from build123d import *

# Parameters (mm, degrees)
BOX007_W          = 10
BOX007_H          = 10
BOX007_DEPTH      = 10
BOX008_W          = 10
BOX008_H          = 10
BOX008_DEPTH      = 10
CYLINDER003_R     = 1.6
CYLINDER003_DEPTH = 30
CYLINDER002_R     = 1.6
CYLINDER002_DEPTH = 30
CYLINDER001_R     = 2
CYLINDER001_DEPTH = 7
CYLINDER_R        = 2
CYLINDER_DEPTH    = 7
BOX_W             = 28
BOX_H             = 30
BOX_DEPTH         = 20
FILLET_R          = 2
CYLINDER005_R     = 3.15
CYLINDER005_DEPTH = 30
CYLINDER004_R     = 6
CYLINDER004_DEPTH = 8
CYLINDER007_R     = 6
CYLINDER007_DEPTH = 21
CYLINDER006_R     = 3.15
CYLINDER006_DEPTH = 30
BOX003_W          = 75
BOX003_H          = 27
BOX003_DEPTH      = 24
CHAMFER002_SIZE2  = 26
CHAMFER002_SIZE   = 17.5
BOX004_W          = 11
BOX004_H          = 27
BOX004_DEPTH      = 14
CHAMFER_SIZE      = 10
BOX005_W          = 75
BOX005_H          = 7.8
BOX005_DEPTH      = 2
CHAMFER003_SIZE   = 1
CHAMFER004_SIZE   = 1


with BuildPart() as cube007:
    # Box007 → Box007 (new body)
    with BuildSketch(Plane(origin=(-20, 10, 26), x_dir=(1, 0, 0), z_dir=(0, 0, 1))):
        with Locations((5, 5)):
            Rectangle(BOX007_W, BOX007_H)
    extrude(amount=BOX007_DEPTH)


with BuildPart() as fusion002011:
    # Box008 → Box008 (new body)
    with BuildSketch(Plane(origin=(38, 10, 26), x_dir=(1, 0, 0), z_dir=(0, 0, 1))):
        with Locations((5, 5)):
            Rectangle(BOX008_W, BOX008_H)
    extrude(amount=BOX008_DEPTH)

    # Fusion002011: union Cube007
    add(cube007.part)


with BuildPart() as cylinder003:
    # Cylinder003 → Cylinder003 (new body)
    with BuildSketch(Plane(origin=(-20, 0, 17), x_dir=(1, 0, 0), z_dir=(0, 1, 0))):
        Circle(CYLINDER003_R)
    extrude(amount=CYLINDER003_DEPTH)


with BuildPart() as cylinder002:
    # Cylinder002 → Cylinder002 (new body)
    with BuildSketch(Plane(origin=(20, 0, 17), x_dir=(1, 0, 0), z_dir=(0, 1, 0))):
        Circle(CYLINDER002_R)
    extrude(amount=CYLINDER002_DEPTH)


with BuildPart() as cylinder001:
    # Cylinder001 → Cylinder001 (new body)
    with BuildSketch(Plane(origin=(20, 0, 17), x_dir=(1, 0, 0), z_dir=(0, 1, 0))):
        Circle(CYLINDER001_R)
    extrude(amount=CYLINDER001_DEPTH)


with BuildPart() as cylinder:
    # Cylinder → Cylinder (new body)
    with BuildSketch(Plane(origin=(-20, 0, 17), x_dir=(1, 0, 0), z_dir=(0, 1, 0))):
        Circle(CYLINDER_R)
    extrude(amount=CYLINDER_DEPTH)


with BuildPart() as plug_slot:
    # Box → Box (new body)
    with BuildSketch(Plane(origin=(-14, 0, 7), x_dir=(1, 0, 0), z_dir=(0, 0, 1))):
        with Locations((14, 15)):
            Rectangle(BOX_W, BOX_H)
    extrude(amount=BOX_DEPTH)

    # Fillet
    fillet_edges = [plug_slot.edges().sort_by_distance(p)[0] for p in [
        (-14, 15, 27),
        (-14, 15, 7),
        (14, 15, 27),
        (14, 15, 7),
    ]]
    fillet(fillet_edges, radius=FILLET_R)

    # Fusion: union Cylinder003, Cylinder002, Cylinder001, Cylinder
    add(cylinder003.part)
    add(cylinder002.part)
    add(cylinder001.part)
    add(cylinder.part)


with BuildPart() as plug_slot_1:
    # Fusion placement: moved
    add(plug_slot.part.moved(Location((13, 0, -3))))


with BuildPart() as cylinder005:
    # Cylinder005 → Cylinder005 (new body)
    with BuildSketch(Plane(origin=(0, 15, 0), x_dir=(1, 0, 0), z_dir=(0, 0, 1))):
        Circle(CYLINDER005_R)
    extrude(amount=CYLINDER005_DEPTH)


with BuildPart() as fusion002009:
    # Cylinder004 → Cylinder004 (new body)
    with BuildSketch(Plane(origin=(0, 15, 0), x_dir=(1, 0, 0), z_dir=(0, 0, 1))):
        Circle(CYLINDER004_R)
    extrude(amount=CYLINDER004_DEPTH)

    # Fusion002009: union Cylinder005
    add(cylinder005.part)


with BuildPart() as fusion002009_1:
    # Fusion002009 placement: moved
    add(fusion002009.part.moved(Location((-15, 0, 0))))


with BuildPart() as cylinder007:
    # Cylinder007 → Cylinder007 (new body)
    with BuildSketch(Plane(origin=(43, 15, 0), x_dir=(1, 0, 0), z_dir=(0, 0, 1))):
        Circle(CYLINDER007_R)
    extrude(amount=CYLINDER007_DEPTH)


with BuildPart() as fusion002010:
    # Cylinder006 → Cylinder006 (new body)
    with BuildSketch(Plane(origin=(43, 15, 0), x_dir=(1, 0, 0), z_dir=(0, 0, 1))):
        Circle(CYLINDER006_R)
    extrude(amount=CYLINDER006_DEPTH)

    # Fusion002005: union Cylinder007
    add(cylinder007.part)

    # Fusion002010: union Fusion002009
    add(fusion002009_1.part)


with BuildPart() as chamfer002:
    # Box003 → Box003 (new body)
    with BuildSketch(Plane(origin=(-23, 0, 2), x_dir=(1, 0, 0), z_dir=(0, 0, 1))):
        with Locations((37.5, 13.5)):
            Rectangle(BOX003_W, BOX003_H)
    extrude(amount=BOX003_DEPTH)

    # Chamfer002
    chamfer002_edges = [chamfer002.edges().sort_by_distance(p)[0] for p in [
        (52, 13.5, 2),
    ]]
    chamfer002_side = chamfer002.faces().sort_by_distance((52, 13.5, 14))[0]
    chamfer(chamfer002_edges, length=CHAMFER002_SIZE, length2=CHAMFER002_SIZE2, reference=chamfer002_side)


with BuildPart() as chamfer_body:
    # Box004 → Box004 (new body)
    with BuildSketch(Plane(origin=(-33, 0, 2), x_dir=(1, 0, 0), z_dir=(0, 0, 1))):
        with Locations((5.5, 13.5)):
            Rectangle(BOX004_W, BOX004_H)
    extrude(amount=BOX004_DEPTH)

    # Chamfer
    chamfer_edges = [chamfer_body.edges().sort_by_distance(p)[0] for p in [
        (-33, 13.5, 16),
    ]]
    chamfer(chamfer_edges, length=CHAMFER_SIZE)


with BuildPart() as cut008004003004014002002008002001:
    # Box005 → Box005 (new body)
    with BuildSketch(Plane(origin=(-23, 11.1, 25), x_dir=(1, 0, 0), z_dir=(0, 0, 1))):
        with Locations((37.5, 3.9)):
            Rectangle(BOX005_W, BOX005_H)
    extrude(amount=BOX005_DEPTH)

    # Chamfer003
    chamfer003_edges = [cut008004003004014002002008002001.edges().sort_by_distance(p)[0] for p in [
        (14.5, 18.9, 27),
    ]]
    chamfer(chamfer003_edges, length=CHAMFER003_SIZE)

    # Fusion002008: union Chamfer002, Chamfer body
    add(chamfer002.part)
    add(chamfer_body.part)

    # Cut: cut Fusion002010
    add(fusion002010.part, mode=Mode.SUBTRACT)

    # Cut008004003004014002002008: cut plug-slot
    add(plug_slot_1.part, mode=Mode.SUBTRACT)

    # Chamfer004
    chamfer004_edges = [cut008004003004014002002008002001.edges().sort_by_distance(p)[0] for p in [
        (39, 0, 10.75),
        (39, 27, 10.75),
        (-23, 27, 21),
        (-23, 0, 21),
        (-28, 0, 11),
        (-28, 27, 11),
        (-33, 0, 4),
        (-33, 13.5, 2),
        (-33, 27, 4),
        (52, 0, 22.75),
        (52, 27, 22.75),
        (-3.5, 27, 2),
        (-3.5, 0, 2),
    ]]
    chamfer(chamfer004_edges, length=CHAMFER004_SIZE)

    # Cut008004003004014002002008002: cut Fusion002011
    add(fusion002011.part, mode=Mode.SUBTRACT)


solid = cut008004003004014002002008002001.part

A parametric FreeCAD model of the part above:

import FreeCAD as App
import Part
import Sketcher

V = App.Vector
Q = App.Units.Quantity


def edges_at(feature, points):
    """Names of the edges that pass closest to the given points."""
    edges = feature.Shape.Edges
    near = lambda p: min(range(len(edges)), key=lambda i: edges[i].distToShape(Part.Vertex(*p))[0])
    return sorted({f"Edge{near(p) + 1}" for p in points})

doc = App.newDocument("Part")
body = doc.addObject("PartDesign::Body", "Body")

sketch1 = body.newObject("Sketcher::SketchObject", "Sketch")
sketch1.AttachmentSupport = (doc.getObject("XY_Plane"), [""])
sketch1.MapMode = "FlatFace"
sketch1.AttachmentOffset = App.Placement(V(0, 0, 26), App.Rotation())
sketch1.addGeometry([
    Part.LineSegment(V(-20, 20, 0), V(-20, 10, 0)),
    Part.LineSegment(V(-20, 10, 0), V(-10, 10, 0)),
    Part.LineSegment(V(-10, 10, 0), V(-10, 20, 0)),
    Part.LineSegment(V(-10, 20, 0), V(-20, 20, 0)),
], False)
sketch1.addConstraint([
    Sketcher.Constraint("Coincident", 0, 2, 1, 1),
    Sketcher.Constraint("Coincident", 1, 2, 2, 1),
    Sketcher.Constraint("Coincident", 2, 2, 3, 1),
    Sketcher.Constraint("Coincident", 3, 2, 0, 1),
    Sketcher.Constraint("Vertical", 0),
    Sketcher.Constraint("Horizontal", 1),
    Sketcher.Constraint("Vertical", 2),
    Sketcher.Constraint("Horizontal", 3),
    Sketcher.Constraint("Equal", 3, 0),
    Sketcher.Constraint("DistanceX", 1, 1, 1, 2, Q("10 mm")),
    Sketcher.Constraint("DistanceX", 0, 2, -1, 1, Q("20 mm")),
    Sketcher.Constraint("DistanceY", -1, 1, 0, 2, Q("10 mm")),
])
pad1 = body.newObject("PartDesign::Pad", "Pad")
pad1.Profile = sketch1
pad1.Length = 10
body2 = doc.addObject("PartDesign::Body", "Body001")
body2.AllowCompound = True

sketch2 = body2.newObject("Sketcher::SketchObject", "Sketch001")
sketch2.AttachmentSupport = (doc.getObject("XY_Plane001"), [""])
sketch2.MapMode = "FlatFace"
sketch2.AttachmentOffset = App.Placement(V(0, 0, 26), App.Rotation())
sketch2.addGeometry([
    Part.LineSegment(V(38, 20, 0), V(38, 10, 0)),
    Part.LineSegment(V(38, 10, 0), V(48, 10, 0)),
    Part.LineSegment(V(48, 10, 0), V(48, 20, 0)),
    Part.LineSegment(V(48, 20, 0), V(38, 20, 0)),
], False)
sketch2.addConstraint([
    Sketcher.Constraint("Coincident", 0, 2, 1, 1),
    Sketcher.Constraint("Coincident", 1, 2, 2, 1),
    Sketcher.Constraint("Coincident", 2, 2, 3, 1),
    Sketcher.Constraint("Coincident", 3, 2, 0, 1),
    Sketcher.Constraint("Vertical", 0),
    Sketcher.Constraint("Horizontal", 1),
    Sketcher.Constraint("Vertical", 2),
    Sketcher.Constraint("Horizontal", 3),
    Sketcher.Constraint("Equal", 3, 0),
    Sketcher.Constraint("DistanceX", 1, 1, 1, 2, Q("10 mm")),
    Sketcher.Constraint("DistanceX", -1, 1, 0, 2, Q("38 mm")),
    Sketcher.Constraint("DistanceY", -1, 1, 0, 2, Q("10 mm")),
])
pad2 = body2.newObject("PartDesign::Pad", "Pad001")
pad2.Profile = sketch2
pad2.Length = 10
doc.recompute()

boolean = body2.newObject("PartDesign::Boolean", "Boolean")
boolean.Type = "Fuse"
boolean.addObjects([body])
body3 = doc.addObject("PartDesign::Body", "Body002")

sketch3 = body3.newObject("Sketcher::SketchObject", "Sketch002")
sketch3.AttachmentSupport = (doc.getObject("XZ_Plane002"), [""])
sketch3.MapMode = "FlatFace"
sketch3.addGeometry(Part.Circle(V(-20, 17, 0), V(0, 0, 1), 1.6), False)
sketch3.addConstraint([
    Sketcher.Constraint("Diameter", 0, Q("3.2 mm")),
    Sketcher.Constraint("DistanceX", 0, 3, -1, 1, Q("20 mm")),
    Sketcher.Constraint("DistanceY", -1, 1, 0, 3, Q("17 mm")),
])
pad3 = body3.newObject("PartDesign::Pad", "Pad002")
pad3.Profile = sketch3
pad3.Length = 30
pad3.Reversed = True
body4 = doc.addObject("PartDesign::Body", "Body003")

sketch4 = body4.newObject("Sketcher::SketchObject", "Sketch003")
sketch4.AttachmentSupport = (doc.getObject("XZ_Plane003"), [""])
sketch4.MapMode = "FlatFace"
sketch4.addGeometry(Part.Circle(V(20, 17, 0), V(0, 0, 1), 1.6), False)
sketch4.addConstraint([
    Sketcher.Constraint("Diameter", 0, Q("3.2 mm")),
    Sketcher.Constraint("DistanceX", -1, 1, 0, 3, Q("20 mm")),
    Sketcher.Constraint("DistanceY", -1, 1, 0, 3, Q("17 mm")),
])
pad4 = body4.newObject("PartDesign::Pad", "Pad003")
pad4.Profile = sketch4
pad4.Length = 30
pad4.Reversed = True
body5 = doc.addObject("PartDesign::Body", "Body004")

sketch5 = body5.newObject("Sketcher::SketchObject", "Sketch004")
sketch5.AttachmentSupport = (doc.getObject("XZ_Plane004"), [""])
sketch5.MapMode = "FlatFace"
sketch5.addGeometry(Part.Circle(V(20, 17, 0), V(0, 0, 1), 2), False)
sketch5.addConstraint([
    Sketcher.Constraint("Diameter", 0, Q("4 mm")),
    Sketcher.Constraint("DistanceX", -1, 1, 0, 3, Q("20 mm")),
    Sketcher.Constraint("DistanceY", -1, 1, 0, 3, Q("17 mm")),
])
pad5 = body5.newObject("PartDesign::Pad", "Pad004")
pad5.Profile = sketch5
pad5.Length = 7
pad5.Reversed = True
body6 = doc.addObject("PartDesign::Body", "Body005")

sketch6 = body6.newObject("Sketcher::SketchObject", "Sketch005")
sketch6.AttachmentSupport = (doc.getObject("XZ_Plane005"), [""])
sketch6.MapMode = "FlatFace"
sketch6.addGeometry(Part.Circle(V(-20, 17, 0), V(0, 0, 1), 2), False)
sketch6.addConstraint([
    Sketcher.Constraint("Diameter", 0, Q("4 mm")),
    Sketcher.Constraint("DistanceX", 0, 3, -1, 1, Q("20 mm")),
    Sketcher.Constraint("DistanceY", -1, 1, 0, 3, Q("17 mm")),
])
pad6 = body6.newObject("PartDesign::Pad", "Pad005")
pad6.Profile = sketch6
pad6.Length = 7
pad6.Reversed = True
body7 = doc.addObject("PartDesign::Body", "Body006")
body7.AllowCompound = True

sketch7 = body7.newObject("Sketcher::SketchObject", "Sketch006")
sketch7.AttachmentSupport = (doc.getObject("XY_Plane006"), [""])
sketch7.MapMode = "FlatFace"
sketch7.AttachmentOffset = App.Placement(V(0, 0, 7), App.Rotation())
sketch7.addGeometry([
    Part.LineSegment(V(-14, 30, 0), V(-14, 0, 0)),
    Part.LineSegment(V(-14, 0, 0), V(14, 0, 0)),
    Part.LineSegment(V(14, 0, 0), V(14, 30, 0)),
    Part.LineSegment(V(14, 30, 0), V(-14, 30, 0)),
], False)
sketch7.addConstraint([
    Sketcher.Constraint("Coincident", 0, 2, 1, 1),
    Sketcher.Constraint("Coincident", 1, 2, 2, 1),
    Sketcher.Constraint("Coincident", 2, 2, 3, 1),
    Sketcher.Constraint("Coincident", 3, 2, 0, 1),
    Sketcher.Constraint("Vertical", 0),
    Sketcher.Constraint("Horizontal", 1),
    Sketcher.Constraint("Vertical", 2),
    Sketcher.Constraint("Horizontal", 3),
    Sketcher.Constraint("Symmetric", 0, 2, 1, 2, -1, 1),
    Sketcher.Constraint("DistanceX", 1, 1, 1, 2, Q("28 mm")),
    Sketcher.Constraint("DistanceY", 0, 2, 0, 1, Q("30 mm")),
])
pad7 = body7.newObject("PartDesign::Pad", "Pad006")
pad7.Profile = sketch7
pad7.Length = 20
doc.recompute()

fillet = body7.newObject("PartDesign::Fillet", "Fillet")
fillet.Base = (pad7, edges_at(pad7, [
    (-14, 15, 27),
    (-14, 15, 7),
    (14, 15, 27),
    (14, 15, 7),
]))
fillet.Radius = 2
doc.recompute()

boolean2 = body7.newObject("PartDesign::Boolean", "Boolean001")
boolean2.Type = "Fuse"
boolean2.addObjects([body3])
doc.recompute()

boolean3 = body7.newObject("PartDesign::Boolean", "Boolean002")
boolean3.Type = "Fuse"
boolean3.addObjects([body4])
doc.recompute()

boolean4 = body7.newObject("PartDesign::Boolean", "Boolean003")
boolean4.Type = "Fuse"
boolean4.addObjects([body5])
doc.recompute()

boolean5 = body7.newObject("PartDesign::Boolean", "Boolean004")
boolean5.Type = "Fuse"
boolean5.addObjects([body6])
body8 = doc.addObject("PartDesign::Body", "Body007")
body8.AllowCompound = True
doc.recompute()

body7.Placement = App.Placement(V(13, 0, -3), App.Rotation(V(0, 0, 1), 0))
boolean6 = body8.newObject("PartDesign::Boolean", "Boolean005")
boolean6.Type = "Fuse"
boolean6.addObjects([body7])
body9 = doc.addObject("PartDesign::Body", "Body008")

sketch8 = body9.newObject("Sketcher::SketchObject", "Sketch007")
sketch8.AttachmentSupport = (doc.getObject("XY_Plane008"), [""])
sketch8.MapMode = "FlatFace"
sketch8.addGeometry(Part.Circle(V(0, 15, 0), V(0, 0, 1), 3.15), False)
sketch8.addConstraint([
    Sketcher.Constraint("PointOnObject", 0, 3, -2),
    Sketcher.Constraint("Diameter", 0, Q("6.3 mm")),
    Sketcher.Constraint("DistanceY", -1, 1, 0, 3, Q("15 mm")),
])
pad8 = body9.newObject("PartDesign::Pad", "Pad007")
pad8.Profile = sketch8
pad8.Length = 30
body10 = doc.addObject("PartDesign::Body", "Body009")

sketch9 = body10.newObject("Sketcher::SketchObject", "Sketch008")
sketch9.AttachmentSupport = (doc.getObject("XY_Plane009"), [""])
sketch9.MapMode = "FlatFace"
sketch9.addGeometry(Part.Circle(V(0, 15, 0), V(0, 0, 1), 6), False)
sketch9.addConstraint([
    Sketcher.Constraint("PointOnObject", 0, 3, -2),
    Sketcher.Constraint("Diameter", 0, Q("12 mm")),
    Sketcher.Constraint("DistanceY", -1, 1, 0, 3, Q("15 mm")),
])
pad9 = body10.newObject("PartDesign::Pad", "Pad008")
pad9.Profile = sketch9
pad9.Length = 8
doc.recompute()

boolean7 = body10.newObject("PartDesign::Boolean", "Boolean006")
boolean7.Type = "Fuse"
boolean7.addObjects([body9])
body11 = doc.addObject("PartDesign::Body", "Body010")
doc.recompute()

body10.Placement = App.Placement(V(-15, 0, 0), App.Rotation(V(0, 0, 1), 0))
boolean8 = body11.newObject("PartDesign::Boolean", "Boolean007")
boolean8.Type = "Fuse"
boolean8.addObjects([body10])
body12 = doc.addObject("PartDesign::Body", "Body011")

sketch10 = body12.newObject("Sketcher::SketchObject", "Sketch009")
sketch10.AttachmentSupport = (doc.getObject("XY_Plane011"), [""])
sketch10.MapMode = "FlatFace"
sketch10.addGeometry(Part.Circle(V(43, 15, 0), V(0, 0, 1), 6), False)
sketch10.addConstraint([
    Sketcher.Constraint("Diameter", 0, Q("12 mm")),
    Sketcher.Constraint("DistanceX", -1, 1, 0, 3, Q("43 mm")),
    Sketcher.Constraint("DistanceY", -1, 1, 0, 3, Q("15 mm")),
])
pad10 = body12.newObject("PartDesign::Pad", "Pad009")
pad10.Profile = sketch10
pad10.Length = 21
body13 = doc.addObject("PartDesign::Body", "Body012")
body13.AllowCompound = True

sketch11 = body13.newObject("Sketcher::SketchObject", "Sketch010")
sketch11.AttachmentSupport = (doc.getObject("XY_Plane012"), [""])
sketch11.MapMode = "FlatFace"
sketch11.addGeometry(Part.Circle(V(43, 15, 0), V(0, 0, 1), 3.15), False)
sketch11.addConstraint([
    Sketcher.Constraint("Diameter", 0, Q("6.3 mm")),
    Sketcher.Constraint("DistanceX", -1, 1, 0, 3, Q("43 mm")),
    Sketcher.Constraint("DistanceY", -1, 1, 0, 3, Q("15 mm")),
])
pad11 = body13.newObject("PartDesign::Pad", "Pad010")
pad11.Profile = sketch11
pad11.Length = 30
doc.recompute()

boolean9 = body13.newObject("PartDesign::Boolean", "Boolean008")
boolean9.Type = "Fuse"
boolean9.addObjects([body12])
doc.recompute()

boolean10 = body13.newObject("PartDesign::Boolean", "Boolean009")
boolean10.Type = "Fuse"
boolean10.addObjects([body11])
body14 = doc.addObject("PartDesign::Body", "Body013")

sketch12 = body14.newObject("Sketcher::SketchObject", "Sketch011")
sketch12.AttachmentSupport = (doc.getObject("XY_Plane013"), [""])
sketch12.MapMode = "FlatFace"
sketch12.AttachmentOffset = App.Placement(V(0, 0, 2), App.Rotation())
sketch12.addGeometry([
    Part.LineSegment(V(-23, 27, 0), V(-23, 0, 0)),
    Part.LineSegment(V(-23, 0, 0), V(52, 0, 0)),
    Part.LineSegment(V(52, 0, 0), V(52, 27, 0)),
    Part.LineSegment(V(52, 27, 0), V(-23, 27, 0)),
], False)
sketch12.addConstraint([
    Sketcher.Constraint("Coincident", 0, 2, 1, 1),
    Sketcher.Constraint("Coincident", 1, 2, 2, 1),
    Sketcher.Constraint("Coincident", 2, 2, 3, 1),
    Sketcher.Constraint("Coincident", 3, 2, 0, 1),
    Sketcher.Constraint("Vertical", 0),
    Sketcher.Constraint("Horizontal", 1),
    Sketcher.Constraint("Vertical", 2),
    Sketcher.Constraint("Horizontal", 3),
    Sketcher.Constraint("PointOnObject", 0, 2, -1),
    Sketcher.Constraint("DistanceX", 1, 1, 1, 2, Q("75 mm")),
    Sketcher.Constraint("DistanceY", 0, 2, 0, 1, Q("27 mm")),
    Sketcher.Constraint("DistanceX", 0, 2, -1, 1, Q("23 mm")),
])
pad12 = body14.newObject("PartDesign::Pad", "Pad011")
pad12.Profile = sketch12
pad12.Length = 24
doc.recompute()

chamfer = body14.newObject("PartDesign::Chamfer", "Chamfer")
chamfer.Base = (pad12, edges_at(pad12, [(52, 13.5, 2)]))
chamfer.ChamferType = "Two distances"
chamfer.Size = 17.5
chamfer.Size2 = 26
body15 = doc.addObject("PartDesign::Body", "Body014")

sketch13 = body15.newObject("Sketcher::SketchObject", "Sketch012")
sketch13.AttachmentSupport = (doc.getObject("XY_Plane014"), [""])
sketch13.MapMode = "FlatFace"
sketch13.AttachmentOffset = App.Placement(V(0, 0, 2), App.Rotation())
sketch13.addGeometry([
    Part.LineSegment(V(-33, 27, 0), V(-33, 0, 0)),
    Part.LineSegment(V(-33, 0, 0), V(-22, 0, 0)),
    Part.LineSegment(V(-22, 0, 0), V(-22, 27, 0)),
    Part.LineSegment(V(-22, 27, 0), V(-33, 27, 0)),
], False)
sketch13.addConstraint([
    Sketcher.Constraint("Coincident", 0, 2, 1, 1),
    Sketcher.Constraint("Coincident", 1, 2, 2, 1),
    Sketcher.Constraint("Coincident", 2, 2, 3, 1),
    Sketcher.Constraint("Coincident", 3, 2, 0, 1),
    Sketcher.Constraint("Vertical", 0),
    Sketcher.Constraint("Horizontal", 1),
    Sketcher.Constraint("Vertical", 2),
    Sketcher.Constraint("Horizontal", 3),
    Sketcher.Constraint("PointOnObject", 0, 2, -1),
    Sketcher.Constraint("DistanceX", 1, 1, 1, 2, Q("11 mm")),
    Sketcher.Constraint("DistanceY", 0, 2, 0, 1, Q("27 mm")),
    Sketcher.Constraint("DistanceX", 0, 2, -1, 1, Q("33 mm")),
])
pad13 = body15.newObject("PartDesign::Pad", "Pad012")
pad13.Profile = sketch13
pad13.Length = 14
doc.recompute()

chamfer2 = body15.newObject("PartDesign::Chamfer", "Chamfer001")
chamfer2.Base = (pad13, edges_at(pad13, [(-33, 13.5, 16)]))
chamfer2.Size = 10
body16 = doc.addObject("PartDesign::Body", "Body015")

sketch14 = body16.newObject("Sketcher::SketchObject", "Sketch013")
sketch14.AttachmentSupport = (doc.getObject("XY_Plane015"), [""])
sketch14.MapMode = "FlatFace"
sketch14.AttachmentOffset = App.Placement(V(0, 0, 25), App.Rotation())
sketch14.addGeometry([
    Part.LineSegment(V(-23, 18.9, 0), V(-23, 11.1, 0)),
    Part.LineSegment(V(-23, 11.1, 0), V(52, 11.1, 0)),
    Part.LineSegment(V(52, 11.1, 0), V(52, 18.9, 0)),
    Part.LineSegment(V(52, 18.9, 0), V(-23, 18.9, 0)),
], False)
sketch14.addConstraint([
    Sketcher.Constraint("Coincident", 0, 2, 1, 1),
    Sketcher.Constraint("Coincident", 1, 2, 2, 1),
    Sketcher.Constraint("Coincident", 2, 2, 3, 1),
    Sketcher.Constraint("Coincident", 3, 2, 0, 1),
    Sketcher.Constraint("Vertical", 0),
    Sketcher.Constraint("Horizontal", 1),
    Sketcher.Constraint("Vertical", 2),
    Sketcher.Constraint("Horizontal", 3),
    Sketcher.Constraint("DistanceX", 1, 1, 1, 2, Q("75 mm")),
    Sketcher.Constraint("DistanceY", 0, 2, 0, 1, Q("7.8 mm")),
    Sketcher.Constraint("DistanceX", 0, 2, -1, 1, Q("23 mm")),
    Sketcher.Constraint("DistanceY", -1, 1, 0, 2, Q("11.1 mm")),
])
pad14 = body16.newObject("PartDesign::Pad", "Pad013")
pad14.Profile = sketch14
pad14.Length = 2
doc.recompute()

chamfer3 = body16.newObject("PartDesign::Chamfer", "Chamfer002")
chamfer3.Base = (pad14, edges_at(pad14, [(14.5, 18.9, 27)]))
chamfer3.Size = 1
doc.recompute()

boolean11 = body16.newObject("PartDesign::Boolean", "Boolean010")
boolean11.Type = "Fuse"
boolean11.addObjects([body14])
doc.recompute()

boolean12 = body16.newObject("PartDesign::Boolean", "Boolean011")
boolean12.Type = "Fuse"
boolean12.addObjects([body15])
doc.recompute()

boolean13 = body16.newObject("PartDesign::Boolean", "Boolean012")
boolean13.Type = "Cut"
boolean13.addObjects([body13])
doc.recompute()

boolean14 = body16.newObject("PartDesign::Boolean", "Boolean013")
boolean14.Type = "Cut"
boolean14.addObjects([body8])
doc.recompute()

chamfer4 = body16.newObject("PartDesign::Chamfer", "Chamfer003")
chamfer4.Base = (boolean14, edges_at(boolean14, [
    (39, 0, 10.75),
    (39, 27, 10.75),
    (-23, 27, 21),
    (-23, 0, 21),
    (-28, 0, 11),
    (-28, 27, 11),
    (-33, 0, 4),
    (-33, 13.5, 2),
    (-33, 27, 4),
    (52, 0, 22.75),
    (52, 27, 22.75),
    (-3.5, 27, 2),
    (-3.5, 0, 2),
]))
chamfer4.Size = 1
doc.recompute()

boolean15 = body16.newObject("PartDesign::Boolean", "Boolean014")
boolean15.Type = "Cut"
boolean15.addObjects([body2])

doc.recompute()
